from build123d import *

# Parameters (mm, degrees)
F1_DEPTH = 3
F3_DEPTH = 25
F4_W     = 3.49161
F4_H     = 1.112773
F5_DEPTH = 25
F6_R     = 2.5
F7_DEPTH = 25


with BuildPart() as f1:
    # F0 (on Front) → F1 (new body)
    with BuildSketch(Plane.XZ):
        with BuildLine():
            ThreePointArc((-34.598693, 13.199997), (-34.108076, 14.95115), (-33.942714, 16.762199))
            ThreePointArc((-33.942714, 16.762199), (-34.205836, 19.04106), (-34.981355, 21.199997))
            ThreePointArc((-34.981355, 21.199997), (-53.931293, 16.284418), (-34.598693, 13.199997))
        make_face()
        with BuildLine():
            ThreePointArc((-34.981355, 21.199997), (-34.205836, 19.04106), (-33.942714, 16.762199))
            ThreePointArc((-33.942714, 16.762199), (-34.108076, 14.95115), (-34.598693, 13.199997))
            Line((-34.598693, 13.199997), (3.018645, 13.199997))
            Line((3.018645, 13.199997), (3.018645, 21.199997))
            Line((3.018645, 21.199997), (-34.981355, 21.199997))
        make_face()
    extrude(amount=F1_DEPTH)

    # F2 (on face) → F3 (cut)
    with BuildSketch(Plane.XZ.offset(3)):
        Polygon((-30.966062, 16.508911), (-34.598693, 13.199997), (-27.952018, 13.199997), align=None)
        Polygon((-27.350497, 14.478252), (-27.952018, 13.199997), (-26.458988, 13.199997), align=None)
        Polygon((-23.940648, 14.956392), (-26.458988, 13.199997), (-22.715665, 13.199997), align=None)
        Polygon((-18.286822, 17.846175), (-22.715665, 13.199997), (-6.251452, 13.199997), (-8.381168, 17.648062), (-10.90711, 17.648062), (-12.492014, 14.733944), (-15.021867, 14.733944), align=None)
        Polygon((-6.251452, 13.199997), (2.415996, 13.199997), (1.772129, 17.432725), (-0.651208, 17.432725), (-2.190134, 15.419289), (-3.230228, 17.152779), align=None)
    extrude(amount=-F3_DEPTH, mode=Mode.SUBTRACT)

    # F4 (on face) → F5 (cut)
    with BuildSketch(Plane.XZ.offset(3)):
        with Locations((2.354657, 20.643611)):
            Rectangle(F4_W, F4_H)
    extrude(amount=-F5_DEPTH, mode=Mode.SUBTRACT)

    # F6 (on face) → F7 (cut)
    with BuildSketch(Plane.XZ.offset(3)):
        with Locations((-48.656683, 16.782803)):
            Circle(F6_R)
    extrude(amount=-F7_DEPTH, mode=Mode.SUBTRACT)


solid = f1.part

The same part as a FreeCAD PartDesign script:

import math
import FreeCAD as App
import Part
import Sketcher

doc = App.newDocument("Part")
body = doc.addObject("PartDesign::Body", "Body")

# Sketch on XZ plane
sketch1 = body.newObject("Sketcher::SketchObject", "Sketch")
sketch1.AttachmentSupport = (doc.getObject("XZ_Plane"), [""])
sketch1.MapMode = "FlatFace"
sketch1.addGeometry(Part.ArcOfCircle(Part.Circle(App.Vector(-43.942713, 16.762199, 0), App.Vector(0, 0, 1), 10), math.radians(26.345299), math.radians(339.131755)), False)
sketch1.addGeometry(Part.LineSegment(App.Vector(-34.598693, 13.199997, 0), App.Vector(3.018645, 13.199997, 0)), False)
sketch1.addGeometry(Part.LineSegment(App.Vector(3.018645, 13.199997, 0), App.Vector(3.018645, 21.199997, 0)), False)
sketch1.addGeometry(Part.LineSegment(App.Vector(3.018645, 21.199997, 0), App.Vector(-34.981355, 21.199997, 0)), False)
sketch1.addConstraint(Sketcher.Constraint("Coincident", 0, 2, 1, 1))
sketch1.addConstraint(Sketcher.Constraint("Coincident", 1, 2, 2, 1))
sketch1.addConstraint(Sketcher.Constraint("Coincident", 2, 2, 3, 1))
sketch1.addConstraint(Sketcher.Constraint("Coincident", 3, 2, 0, 1))
sketch1.addConstraint(Sketcher.Constraint("Horizontal", 1))
sketch1.addConstraint(Sketcher.Constraint("Vertical", 2))
sketch1.addConstraint(Sketcher.Constraint("Horizontal", 3))
sketch1.addConstraint(Sketcher.Constraint("Radius", 0, 10.0))
sketch1.addConstraint(Sketcher.Constraint("DistanceX", 3, 2, 3, 1, 38.0))
sketch1.addConstraint(Sketcher.Constraint("DistanceY", 2, 1, 2, 2, 8.0))
sketch1.addConstraint(Sketcher.Constraint("DistanceY", -1, 1, 0, 3, 16.762199))
sketch1.addConstraint(Sketcher.Constraint("DistanceY", 0, 2, 0, 3, 3.562202))
sketch1.addConstraint(Sketcher.Constraint("DistanceX", 0, 3, -1, 1, 43.942713))
pad1 = body.newObject("PartDesign::Pad", "Pad")
pad1.Profile = sketch1
pad1.Length = 3

# Sketch on XZ plane
sketch2 = body.newObject("Sketcher::SketchObject", "Sketch001")
sketch2.AttachmentSupport = (doc.getObject("XZ_Plane"), [""])
sketch2.MapMode = "FlatFace"
sketch2.AttachmentOffset = App.Placement(App.Vector(0, 0, 3), App.Rotation())
sketch2.addGeometry(Part.LineSegment(App.Vector(-30.966062, 16.508911, 0), App.Vector(-34.598693, 13.199997, 0)), False)
sketch2.addGeometry(Part.LineSegment(App.Vector(-34.598693, 13.199997, 0), App.Vector(-27.952018, 13.199997, 0)), False)
sketch2.addGeometry(Part.LineSegment(App.Vector(-27.952018, 13.199997, 0), App.Vector(-30.966062, 16.508911, 0)), False)
sketch2.addGeometry(Part.LineSegment(App.Vector(-27.350497, 14.478252, 0), App.Vector(-27.952018, 13.199997, 0)), False)
sketch2.addGeometry(Part.LineSegment(App.Vector(-27.952018, 13.199997, 0), App.Vector(-26.458988, 13.199997, 0)), False)
sketch2.addGeometry(Part.LineSegment(App.Vector(-26.458988, 13.199997, 0), App.Vector(-27.350497, 14.478252, 0)), False)
sketch2.addGeometry(Part.LineSegment(App.Vector(-23.940648, 14.956392, 0), App.Vector(-26.458988, 13.199997, 0)), False)
sketch2.addGeometry(Part.LineSegment(App.Vector(-26.458988, 13.199997, 0), App.Vector(-22.715665, 13.199997, 0)), False)
sketch2.addGeometry(Part.LineSegment(App.Vector(-22.715665, 13.199997, 0), App.Vector(-23.940648, 14.956392, 0)), False)
sketch2.addGeometry(Part.LineSegment(App.Vector(-18.286822, 17.846175, 0), App.Vector(-22.715665, 13.199997, 0)), False)
sketch2.addGeometry(Part.LineSegment(App.Vector(-22.715665, 13.199997, 0), App.Vector(-6.251452, 13.199997, 0)), False)
sketch2.addGeometry(Part.LineSegment(App.Vector(-6.251452, 13.199997, 0), App.Vector(-8.381168, 17.648062, 0)), False)
sketch2.addGeometry(Part.LineSegment(App.Vector(-8.381168, 17.648062, 0), App.Vector(-10.90711, 17.648062, 0)), False)
sketch2.addGeometry(Part.LineSegment(App.Vector(-10.90711, 17.648062, 0), App.Vector(-12.492014, 14.733944, 0)), False)
sketch2.addGeometry(Part.LineSegment(App.Vector(-12.492014, 14.733944, 0), App.Vector(-15.021867, 14.733944, 0)), False)
sketch2.addGeometry(Part.LineSegment(App.Vector(-15.021867, 14.733944, 0), App.Vector(-18.286822, 17.846175, 0)), False)
sketch2.addGeometry(Part.LineSegment(App.Vector(-6.251452, 13.199997, 0), App.Vector(2.415996, 13.199997, 0)), False)
sketch2.addGeometry(Part.LineSegment(App.Vector(2.415996, 13.199997, 0), App.Vector(1.772129, 17.432725, 0)), False)
sketch2.addGeometry(Part.LineSegment(App.Vector(1.772129, 17.432725, 0), App.Vector(-0.651208, 17.432725, 0)), False)
sketch2.addGeometry(Part.LineSegment(App.Vector(-0.651208, 17.432725, 0), App.Vector(-2.190134, 15.419289, 0)), False)
sketch2.addGeometry(Part.LineSegment(App.Vector(-2.190134, 15.419289, 0), App.Vector(-3.230228, 17.152779, 0)), False)
sketch2.addGeometry(Part.LineSegment(App.Vector(-3.230228, 17.152779, 0), App.Vector(-6.251452, 13.199997, 0)), False)
sketch2.addConstraint(Sketcher.Constraint("Coincident", 0, 2, 1, 1))
sketch2.addConstraint(Sketcher.Constraint("Coincident", 1, 2, 2, 1))
sketch2.addConstraint(Sketcher.Constraint("Coincident", 2, 2, 0, 1))
sketch2.addConstraint(Sketcher.Constraint("Coincident", 3, 2, 4, 1))
sketch2.addConstraint(Sketcher.Constraint("Coincident", 4, 2, 5, 1))
sketch2.addConstraint(Sketcher.Constraint("Coincident", 5, 2, 3, 1))
sketch2.addConstraint(Sketcher.Constraint("Coincident", 6, 2, 7, 1))
sketch2.addConstraint(Sketcher.Constraint("Coincident", 7, 2, 8, 1))
sketch2.addConstraint(Sketcher.Constraint("Coincident", 8, 2, 6, 1))
sketch2.addConstraint(Sketcher.Constraint("Coincident", 9, 2, 10, 1))
sketch2.addConstraint(Sketcher.Constraint("Coincident", 10, 2, 11, 1))
sketch2.addConstraint(Sketcher.Constraint("Coincident", 11, 2, 12, 1))
sketch2.addConstraint(Sketcher.Constraint("Coincident", 12, 2, 13, 1))
sketch2.addConstraint(Sketcher.Constraint("Coincident", 13, 2, 14, 1))
sketch2.addConstraint(Sketcher.Constraint("Coincident", 14, 2, 15, 1))
sketch2.addConstraint(Sketcher.Constraint("Coincident", 15, 2, 9, 1))
sketch2.addConstraint(Sketcher.Constraint("Coincident", 16, 2, 17, 1))
sketch2.addConstraint(Sketcher.Constraint("Coincident", 17, 2, 18, 1))
sketch2.addConstraint(Sketcher.Constraint("Coincident", 18, 2, 19, 1))
sketch2.addConstraint(Sketcher.Constraint("Coincident", 19, 2, 20, 1))
sketch2.addConstraint(Sketcher.Constraint("Coincident", 20, 2, 21, 1))
sketch2.addConstraint(Sketcher.Constraint("Coincident", 21, 2, 16, 1))
sketch2.addConstraint(Sketcher.Constraint("Horizontal", 1))
sketch2.addConstraint(Sketcher.Constraint("Horizontal", 4))
sketch2.addConstraint(Sketcher.Constraint("Horizontal", 7))
sketch2.addConstraint(Sketcher.Constraint("Horizontal", 10))
sketch2.addConstraint(Sketcher.Constraint("Horizontal", 12))
sketch2.addConstraint(Sketcher.Constraint("Horizontal", 14))
sketch2.addConstraint(Sketcher.Constraint("Horizontal", 16))
sketch2.addConstraint(Sketcher.Constraint("Horizontal", 18))
sketch2.addConstraint(Sketcher.Constraint("Coincident", 3, 2, 1, 2))
sketch2.addConstraint(Sketcher.Constraint("Coincident", 6, 2, 4, 2))
sketch2.addConstraint(Sketcher.Constraint("Coincident", 9, 2, 7, 2))
sketch2.addConstraint(Sketcher.Constraint("Coincident", 21, 2, 10, 2))
sketch2.addConstraint(Sketcher.Constraint("Perpendicular", 0, 2))
sketch2.addConstraint(Sketcher.Constraint("Perpendicular", 5, 6))
sketch2.addConstraint(Sketcher.Constraint("Perpendicular", 6, 8))
sketch2.addConstraint(Sketcher.Constraint("Perpendicular", 9, 15))
sketch2.addConstraint(Sketcher.Constraint("Parallel", 19, 21))
sketch2.addConstraint(Sketcher.Constraint("DistanceX", 4, 1, 4, 2, 1.49303))
sketch2.addConstraint(Sketcher.Constraint("DistanceX", 12, 2, 12, 1, 2.525942))
sketch2.addConstraint(Sketcher.Constraint("DistanceX", 14, 2, 11, 2, 6.640699))
sketch2.addConstraint(Sketcher.Constraint("DistanceX", 7, 2, 14, 2, 7.693798))
sketch2.addConstraint(Sketcher.Constraint("DistanceX", 12, 2, 18, 2, 10.255902))
sketch2.addConstraint(Sketcher.Constraint("Distance", 0, 4.913748))
sketch2.addConstraint(Sketcher.Constraint("Distance", 8, 2.14138))
sketch2.addConstraint(Sketcher.Constraint("Distance", 9, 6.418849))
sketch2.addConstraint(Sketcher.Constraint("Distance", 11, 4.93163))
sketch2.addConstraint(Sketcher.Constraint("Distance", 13, 3.317228))
sketch2.addConstraint(Sketcher.Constraint("Distance", 17, 4.281419))
sketch2.addConstraint(Sketcher.Constraint("Distance", 19, 2.534209))
sketch2.addConstraint(Sketcher.Constraint("Distance", 20, 2.021579))
sketch2.addConstraint(Sketcher.Constraint("DistanceX", 1, 1, 1, 2, 6.646675))
sketch2.addConstraint(Sketcher.Constraint("DistanceX", 7, 1, 7, 2, 3.743323))
sketch2.addConstraint(Sketcher.Constraint("DistanceX", 10, 1, 10, 2, 16.464213))
sketch2.addConstraint(Sketcher.Constraint("DistanceX", 14, 2, 14, 1, 2.529853))
sketch2.addConstraint(Sketcher.Constraint("DistanceX", 16, 1, 16, 2, 8.667448))
sketch2.addConstraint(Sketcher.Constraint("DistanceX", 18, 2, 18, 1, 2.423337))
sketch2.addConstraint(Sketcher.Constraint("DistanceY", -1, 1, 2, 2, 16.508911))
sketch2.addConstraint(Sketcher.Constraint("DistanceX", 4, 2, -1, 1, 26.458988))
sketch2.addConstraint(Sketcher.Constraint("DistanceY", -1, 1, 19, 2, 15.419289))
sketch2.addConstraint(Sketcher.Constraint("DistanceX", 1, 2, 5, 2, 0.601521))
pocket1 = body.newObject("PartDesign::Pocket", "Pocket")
pocket1.Profile = sketch2
pocket1.Length = 25

# Sketch on XZ plane
sketch3 = body.newObject("Sketcher::SketchObject", "Sketch002")
sketch3.AttachmentSupport = (doc.getObject("XZ_Plane"), [""])
sketch3.MapMode = "FlatFace"
sketch3.AttachmentOffset = App.Placement(App.Vector(0, 0, 3), App.Rotation())
sketch3.addGeometry(Part.LineSegment(App.Vector(0.608852, 21.199997, 0), App.Vector(0.608852, 20.087225, 0)), False)
sketch3.addGeometry(Part.LineSegment(App.Vector(0.608852, 20.087225, 0), App.Vector(4.100462, 20.087225, 0)), False)
sketch3.addGeometry(Part.LineSegment(App.Vector(4.100462, 20.087225, 0), App.Vector(4.100462, 21.199997, 0)), False)
sketch3.addGeometry(Part.LineSegment(App.Vector(4.100462, 21.199997, 0), App.Vector(0.608852, 21.199997, 0)), False)
sketch3.addConstraint(Sketcher.Constraint("Coincident", 0, 2, 1, 1))
sketch3.addConstraint(Sketcher.Constraint("Coincident", 1, 2, 2, 1))
sketch3.addConstraint(Sketcher.Constraint("Coincident", 2, 2, 3, 1))
sketch3.addConstraint(Sketcher.Constraint("Coincident", 3, 2, 0, 1))
sketch3.addConstraint(Sketcher.Constraint("Vertical", 0))
sketch3.addConstraint(Sketcher.Constraint("Horizontal", 1))
sketch3.addConstraint(Sketcher.Constraint("Vertical", 2))
sketch3.addConstraint(Sketcher.Constraint("Horizontal", 3))
sketch3.addConstraint(Sketcher.Constraint("DistanceX", 1, 1, 1, 2, 3.49161))
sketch3.addConstraint(Sketcher.Constraint("DistanceY", 0, 2, 0, 1, 1.112773))
sketch3.addConstraint(Sketcher.Constraint("DistanceX", -1, 1, 0, 2, 0.608852))
sketch3.addConstraint(Sketcher.Constraint("DistanceY", -1, 1, 0, 2, 20.087225))
pocket2 = body.newObject("PartDesign::Pocket", "Pocket001")
pocket2.Profile = sketch3
pocket2.Length = 25

# Sketch on XZ plane
sketch4 = body.newObject("Sketcher::SketchObject", "Sketch003")
sketch4.AttachmentSupport = (doc.getObject("XZ_Plane"), [""])
sketch4.MapMode = "FlatFace"
sketch4.AttachmentOffset = App.Placement(App.Vector(0, 0, 3), App.Rotation())
sketch4.addGeometry(Part.Circle(App.Vector(-48.656683, 16.782803, 0), App.Vector(0, 0, 1), 2.5), False)
sketch4.addConstraint(Sketcher.Constraint("Diameter", 0, 5.0))
sketch4.addConstraint(Sketcher.Constraint("DistanceX", 0, 3, -1, 1, 48.656683))
sketch4.addConstraint(Sketcher.Constraint("DistanceY", -1, 1, 0, 3, 16.782803))
pocket3 = body.newObject("PartDesign::Pocket", "Pocket002")
pocket3.Profile = sketch4
pocket3.Length = 25

doc.recompute()
